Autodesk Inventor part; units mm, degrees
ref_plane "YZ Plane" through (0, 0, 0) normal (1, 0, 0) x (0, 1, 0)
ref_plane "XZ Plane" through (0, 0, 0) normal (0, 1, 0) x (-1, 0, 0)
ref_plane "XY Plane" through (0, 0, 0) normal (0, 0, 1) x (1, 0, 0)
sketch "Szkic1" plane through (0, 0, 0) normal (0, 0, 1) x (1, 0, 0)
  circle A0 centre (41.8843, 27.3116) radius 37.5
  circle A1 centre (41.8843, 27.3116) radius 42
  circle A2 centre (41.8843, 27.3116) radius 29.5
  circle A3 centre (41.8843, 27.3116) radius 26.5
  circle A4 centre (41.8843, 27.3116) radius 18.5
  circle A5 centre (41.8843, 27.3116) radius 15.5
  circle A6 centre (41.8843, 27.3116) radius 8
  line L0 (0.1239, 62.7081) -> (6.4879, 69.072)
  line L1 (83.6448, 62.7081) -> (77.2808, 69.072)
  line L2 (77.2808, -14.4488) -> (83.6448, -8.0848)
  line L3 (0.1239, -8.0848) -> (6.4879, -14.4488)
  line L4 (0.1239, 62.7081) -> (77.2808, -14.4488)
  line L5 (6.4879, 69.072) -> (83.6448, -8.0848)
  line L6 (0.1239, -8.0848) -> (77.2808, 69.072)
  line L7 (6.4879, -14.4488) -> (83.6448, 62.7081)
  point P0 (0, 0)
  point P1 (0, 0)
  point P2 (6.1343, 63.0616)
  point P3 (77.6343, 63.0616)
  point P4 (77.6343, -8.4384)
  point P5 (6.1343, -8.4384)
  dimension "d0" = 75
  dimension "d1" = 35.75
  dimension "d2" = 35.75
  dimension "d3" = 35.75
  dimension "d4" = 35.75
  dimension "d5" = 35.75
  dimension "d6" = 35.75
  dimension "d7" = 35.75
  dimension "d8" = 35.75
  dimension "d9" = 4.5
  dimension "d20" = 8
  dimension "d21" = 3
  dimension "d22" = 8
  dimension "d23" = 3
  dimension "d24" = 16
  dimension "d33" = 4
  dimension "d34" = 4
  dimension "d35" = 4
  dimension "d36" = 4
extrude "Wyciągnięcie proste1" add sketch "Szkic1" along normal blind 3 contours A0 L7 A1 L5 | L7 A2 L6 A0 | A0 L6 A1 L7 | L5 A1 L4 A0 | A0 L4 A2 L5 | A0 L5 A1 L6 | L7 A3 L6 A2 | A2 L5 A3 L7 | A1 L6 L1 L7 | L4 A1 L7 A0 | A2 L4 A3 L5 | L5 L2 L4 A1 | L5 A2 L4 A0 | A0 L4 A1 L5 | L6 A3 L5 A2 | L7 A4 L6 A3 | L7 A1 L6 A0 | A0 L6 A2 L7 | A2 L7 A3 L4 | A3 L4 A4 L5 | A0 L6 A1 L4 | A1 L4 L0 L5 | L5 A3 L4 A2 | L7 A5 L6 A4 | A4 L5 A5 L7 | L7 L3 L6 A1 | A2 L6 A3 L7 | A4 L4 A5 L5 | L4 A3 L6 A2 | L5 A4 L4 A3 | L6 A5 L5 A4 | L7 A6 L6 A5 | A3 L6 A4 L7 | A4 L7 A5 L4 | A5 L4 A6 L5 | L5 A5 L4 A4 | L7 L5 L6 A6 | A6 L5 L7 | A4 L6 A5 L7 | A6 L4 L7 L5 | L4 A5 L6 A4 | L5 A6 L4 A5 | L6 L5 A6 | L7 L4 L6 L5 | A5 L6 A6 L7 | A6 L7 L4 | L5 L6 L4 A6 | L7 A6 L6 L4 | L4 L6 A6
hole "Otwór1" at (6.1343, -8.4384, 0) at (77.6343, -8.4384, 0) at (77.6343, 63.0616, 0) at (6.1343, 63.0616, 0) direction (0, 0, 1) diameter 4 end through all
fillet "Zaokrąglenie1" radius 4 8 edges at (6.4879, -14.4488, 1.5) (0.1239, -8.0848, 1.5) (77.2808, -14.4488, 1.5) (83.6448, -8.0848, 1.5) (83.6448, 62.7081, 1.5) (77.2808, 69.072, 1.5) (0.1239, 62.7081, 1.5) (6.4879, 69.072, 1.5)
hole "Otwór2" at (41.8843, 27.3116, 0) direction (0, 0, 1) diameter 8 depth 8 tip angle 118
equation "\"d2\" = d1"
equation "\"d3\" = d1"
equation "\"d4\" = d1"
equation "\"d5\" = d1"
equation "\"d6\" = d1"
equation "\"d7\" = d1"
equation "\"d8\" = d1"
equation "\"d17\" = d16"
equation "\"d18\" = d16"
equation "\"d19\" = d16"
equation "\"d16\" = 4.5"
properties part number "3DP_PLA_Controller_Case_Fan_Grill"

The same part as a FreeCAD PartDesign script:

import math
import FreeCAD as App
import Part
import Sketcher
from FreeCAD import Vector
Q = App.Units.Quantity


def edges_at(feature, points):
    """Names of the edges that pass closest to the given points."""
    edges = feature.Shape.Edges
    near = lambda p: min(range(len(edges)), key=lambda i: edges[i].distToShape(Part.Vertex(*p))[0])
    return sorted({f"Edge{near(p) + 1}" for p in points})

doc = App.newDocument("Part")
body = doc.addObject("PartDesign::Body", "Body")

# Sketch on XY plane
sketch1 = body.newObject("Sketcher::SketchObject", "Sketch")
sketch1.AttachmentSupport = (doc.getObject("XY_Plane"), [""])
sketch1.MapMode = "FlatFace"
sketch1.addGeometry([
    Part.LineSegment(Vector(74.593827, 53.657127, 0), Vector(83.6448, 62.7081, 0)),  # 0
    Part.LineSegment(Vector(83.6448, 62.7081, 0), Vector(77.2808, 69.072, 0)),  # 1
    Part.LineSegment(Vector(77.2808, 69.072, 0), Vector(68.229876, 60.021088, 0)),  # 2
    Part.ArcOfCircle(Part.Circle(Vector(41.8843, 27.3116, 0), Vector(0, 0, 1), 42), math.radians(51.150592), math.radians(128.849311)),  # 3
    Part.LineSegment(Vector(15.538779, 60.021133, 0), Vector(6.4879, 69.072, 0)),  # 4
    Part.LineSegment(Vector(6.4879, 69.072, 0), Vector(0.1239, 62.7081, 0)),  # 5
    Part.LineSegment(Vector(0.1239, 62.7081, 0), Vector(9.174817, 53.657183, 0)),  # 6
    Part.ArcOfCircle(Part.Circle(Vector(41.8843, 27.3116, 0), Vector(0, 0, 1), 42), math.radians(141.150581), math.radians(218.849334)),  # 7
    Part.LineSegment(Vector(9.174778, 0.966066, 0), Vector(0.1239, -8.0848, 0)),  # 8
    Part.LineSegment(Vector(0.1239, -8.0848, 0), Vector(6.4879, -14.4488, 0)),  # 9
    Part.LineSegment(Vector(6.4879, -14.4488, 0), Vector(15.538773, -5.397927, 0)),  # 10
    Part.ArcOfCircle(Part.Circle(Vector(41.8843, 27.3116, 0), Vector(0, 0, 1), 42), math.radians(-128.849322), math.radians(-51.150581)),  # 11
    Part.LineSegment(Vector(68.229883, -5.397883, 0), Vector(77.2808, -14.4488, 0)),  # 12
    Part.LineSegment(Vector(77.2808, -14.4488, 0), Vector(83.6448, -8.0848, 0)),  # 13
    Part.LineSegment(Vector(83.6448, -8.0848, 0), Vector(74.593867, 0.966121, 0)),  # 14
    Part.ArcOfCircle(Part.Circle(Vector(41.8843, 27.3116, 0), Vector(0, 0, 1), 42), math.radians(-38.849237), math.radians(38.849322)),  # 15
    Part.ArcOfCircle(Part.Circle(Vector(41.8843, 27.3116, 0), Vector(0, 0, 1), 37.5), math.radians(-38.107763), math.radians(38.107855)),  # 16
    Part.LineSegment(Vector(71.391228, 4.168756, 0), Vector(65.681858, 9.878119, 0)),  # 17
    Part.ArcOfCircle(Part.Circle(Vector(41.8843, 27.3116, 0), Vector(0, 0, 1), 29.5), math.radians(-36.22555), math.radians(36.225656)),  # 18
    Part.LineSegment(Vector(65.681825, 44.745125, 0), Vector(71.391191, 50.454491, 0)),  # 19
    Part.LineSegment(Vector(65.027238, 56.818454, 0), Vector(59.317869, 51.109093, 0)),  # 20
    Part.ArcOfCircle(Part.Circle(Vector(41.8843, 27.3116, 0), Vector(0, 0, 1), 29.5), math.radians(53.774237), math.radians(126.225624)),  # 21
    Part.LineSegment(Vector(24.450788, 51.109135, 0), Vector(18.741418, 56.818498, 0)),  # 22
    Part.ArcOfCircle(Part.Circle(Vector(41.8843, 27.3116, 0), Vector(0, 0, 1), 37.5), math.radians(51.892053), math.radians(128.107838)),  # 23
    Part.LineSegment(Vector(59.317883, 3.514117, 0), Vector(65.027247, -2.195247, 0)),  # 24
    Part.ArcOfCircle(Part.Circle(Vector(41.8843, 27.3116, 0), Vector(0, 0, 1), 37.5), math.radians(-128.107855), math.radians(-51.892036)),  # 25
    Part.LineSegment(Vector(18.741409, -2.195291, 0), Vector(24.450775, 3.514075, 0)),  # 26
    Part.ArcOfCircle(Part.Circle(Vector(41.8843, 27.3116, 0), Vector(0, 0, 1), 29.5), math.radians(-126.225656), math.radians(-53.774205)),  # 27
    Part.ArcOfCircle(Part.Circle(Vector(41.8843, 27.3116, 0), Vector(0, 0, 1), 26.5), math.radians(-35.222976), math.radians(35.223091)),  # 28
    Part.LineSegment(Vector(63.532513, 12.027461, 0), Vector(57.754898, 17.805069, 0)),  # 29
    Part.ArcOfCircle(Part.Circle(Vector(41.8843, 27.3116, 0), Vector(0, 0, 1), 18.5), math.radians(-30.921723), math.radians(30.921873)),  # 30
    Part.LineSegment(Vector(57.754873, 36.818173, 0), Vector(63.532482, 42.595782, 0)),  # 31
    Part.LineSegment(Vector(57.168525, 48.959751, 0), Vector(51.390914, 43.182148, 0)),  # 32
    Part.ArcOfCircle(Part.Circle(Vector(41.8843, 27.3116, 0), Vector(0, 0, 1), 18.5), math.radians(59.077977), math.radians(120.921798)),  # 33
    Part.LineSegment(Vector(32.377748, 43.182185, 0), Vector(26.600133, 48.959793, 0)),  # 34
    Part.ArcOfCircle(Part.Circle(Vector(41.8843, 27.3116, 0), Vector(0, 0, 1), 26.5), math.radians(54.776795), math.radians(125.22305)),  # 35
    Part.LineSegment(Vector(12.377453, 50.454547, 0), Vector(18.086817, 44.745183, 0)),  # 36
    Part.ArcOfCircle(Part.Circle(Vector(41.8843, 27.3116, 0), Vector(0, 0, 1), 29.5), math.radians(143.774205), math.radians(216.225689)),  # 37
    Part.LineSegment(Vector(18.086785, 9.878061, 0), Vector(12.377416, 4.1687, 0)),  # 38
    Part.ArcOfCircle(Part.Circle(Vector(41.8843, 27.3116, 0), Vector(0, 0, 1), 37.5), math.radians(141.892036), math.radians(218.107872)),  # 39
    Part.ArcOfCircle(Part.Circle(Vector(41.8843, 27.3116, 0), Vector(0, 0, 1), 26.5), math.radians(-125.223091), math.radians(-54.776754)),  # 40
    Part.LineSegment(Vector(26.600118, 5.663418, 0), Vector(32.377727, 11.441027, 0)),  # 41
    Part.ArcOfCircle(Part.Circle(Vector(41.8843, 27.3116, 0), Vector(0, 0, 1), 18.5), math.radians(-120.921873), math.radians(-59.077901)),  # 42
    Part.LineSegment(Vector(51.390935, 11.441065, 0), Vector(57.168541, 5.663459, 0)),  # 43
    Part.ArcOfCircle(Part.Circle(Vector(41.8843, 27.3116, 0), Vector(0, 0, 1), 15.5), math.radians(-28.12245), math.radians(28.122624)),  # 44
    Part.LineSegment(Vector(55.554405, 20.005559, 0), Vector(49.743367, 25.816589, 0)),  # 45
    Part.ArcOfCircle(Part.Circle(Vector(41.8843, 27.3116, 0), Vector(0, 0, 1), 8), math.radians(-10.770552), math.radians(10.770895)),  # 46
    Part.LineSegment(Vector(49.743358, 28.806658, 0), Vector(55.554383, 34.617683, 0)),  # 47
    Part.LineSegment(Vector(49.190424, 40.98166, 0), Vector(43.379406, 35.17065, 0)),  # 48
    Part.ArcOfCircle(Part.Circle(Vector(41.8843, 27.3116, 0), Vector(0, 0, 1), 8), math.radians(79.228762), math.radians(100.770626)),  # 49
    Part.LineSegment(Vector(40.389278, 35.170665, 0), Vector(34.578241, 40.981695, 0)),  # 50
    Part.ArcOfCircle(Part.Circle(Vector(41.8843, 27.3116, 0), Vector(0, 0, 1), 15.5), math.radians(61.877202), math.radians(118.122525)),  # 51
    Part.ArcOfCircle(Part.Circle(Vector(41.8843, 27.3116, 0), Vector(0, 0, 1), 26.5), math.radians(144.776754), math.radians(215.223131)),  # 52
    Part.LineSegment(Vector(20.236159, 42.595841, 0), Vector(26.013765, 36.818235, 0)),  # 53
    Part.ArcOfCircle(Part.Circle(Vector(41.8843, 27.3116, 0), Vector(0, 0, 1), 18.5), math.radians(149.077901), math.radians(210.921949)),  # 54
    Part.LineSegment(Vector(26.01374, 17.805006, 0), Vector(20.236129, 12.027403, 0)),  # 55
    Part.ArcOfCircle(Part.Circle(Vector(41.8843, 27.3116, 0), Vector(0, 0, 1), 15.5), math.radians(-118.122624), math.radians(-61.877103)),  # 56
    Part.LineSegment(Vector(34.578217, 13.641517, 0), Vector(40.389242, 19.452542, 0)),  # 57
    Part.ArcOfCircle(Part.Circle(Vector(41.8843, 27.3116, 0), Vector(0, 0, 1), 8), math.radians(-100.770895), math.radians(-79.228493)),  # 58
    Part.LineSegment(Vector(43.379442, 19.452558, 0), Vector(49.190448, 13.641552, 0)),  # 59
    Part.ArcOfCircle(Part.Circle(Vector(41.8843, 27.3116, 0), Vector(0, 0, 1), 15.5), math.radians(151.877103), math.radians(208.122724)),  # 60
    Part.LineSegment(Vector(28.214252, 34.617748, 0), Vector(34.025258, 28.806742, 0)),  # 61
    Part.ArcOfCircle(Part.Circle(Vector(41.8843, 27.3116, 0), Vector(0, 0, 1), 8), math.radians(169.228493), math.radians(190.771164)),  # 62
    Part.LineSegment(Vector(34.025249, 25.816505, 0), Vector(28.21423, 20.005494, 0)),  # 63
], False)
sketch1.addConstraint([
    Sketcher.Constraint("Coincident", 0, 2, 1, 1),
    Sketcher.Constraint("Coincident", 1, 2, 2, 1),
    Sketcher.Constraint("Coincident", 2, 2, 3, 1),
    Sketcher.Constraint("Coincident", 3, 2, 4, 1),
    Sketcher.Constraint("Coincident", 4, 2, 5, 1),
    Sketcher.Constraint("Coincident", 5, 2, 6, 1),
    Sketcher.Constraint("Coincident", 6, 2, 7, 1),
    Sketcher.Constraint("Coincident", 7, 2, 8, 1),
    Sketcher.Constraint("Coincident", 8, 2, 9, 1),
    Sketcher.Constraint("Coincident", 9, 2, 10, 1),
    Sketcher.Constraint("Coincident", 10, 2, 11, 1),
    Sketcher.Constraint("Coincident", 11, 2, 12, 1),
    Sketcher.Constraint("Coincident", 12, 2, 13, 1),
    Sketcher.Constraint("Coincident", 13, 2, 14, 1),
    Sketcher.Constraint("Coincident", 14, 2, 15, 1),
    Sketcher.Constraint("Coincident", 15, 2, 0, 1),
    Sketcher.Constraint("Coincident", 16, 1, 17, 1),
    Sketcher.Constraint("Coincident", 17, 2, 18, 1),
    Sketcher.Constraint("Coincident", 18, 2, 19, 1),
    Sketcher.Constraint("Coincident", 19, 2, 16, 2),
    Sketcher.Constraint("Coincident", 20, 2, 21, 1),
    Sketcher.Constraint("Coincident", 21, 2, 22, 1),
    Sketcher.Constraint("Coincident", 22, 2, 23, 2),
    Sketcher.Constraint("Coincident", 23, 1, 20, 1),
    Sketcher.Constraint("Coincident", 24, 2, 25, 2),
    Sketcher.Constraint("Coincident", 25, 1, 26, 1),
    Sketcher.Constraint("Coincident", 26, 2, 27, 1),
    Sketcher.Constraint("Coincident", 27, 2, 24, 1),
    Sketcher.Constraint("Coincident", 28, 1, 29, 1),
    Sketcher.Constraint("Coincident", 29, 2, 30, 1),
    Sketcher.Constraint("Coincident", 30, 2, 31, 1),
    Sketcher.Constraint("Coincident", 31, 2, 28, 2),
    Sketcher.Constraint("Coincident", 32, 2, 33, 1),
    Sketcher.Constraint("Coincident", 33, 2, 34, 1),
    Sketcher.Constraint("Coincident", 34, 2, 35, 2),
    Sketcher.Constraint("Coincident", 35, 1, 32, 1),
    Sketcher.Constraint("Coincident", 36, 2, 37, 1),
    Sketcher.Constraint("Coincident", 37, 2, 38, 1),
    Sketcher.Constraint("Coincident", 38, 2, 39, 2),
    Sketcher.Constraint("Coincident", 39, 1, 36, 1),
    Sketcher.Constraint("Coincident", 40, 1, 41, 1),
    Sketcher.Constraint("Coincident", 41, 2, 42, 1),
    Sketcher.Constraint("Coincident", 42, 2, 43, 1),
    Sketcher.Constraint("Coincident", 43, 2, 40, 2),
    Sketcher.Constraint("Coincident", 44, 1, 45, 1),
    Sketcher.Constraint("Coincident", 45, 2, 46, 1),
    Sketcher.Constraint("Coincident", 46, 2, 47, 1),
    Sketcher.Constraint("Coincident", 47, 2, 44, 2),
    Sketcher.Constraint("Coincident", 48, 2, 49, 1),
    Sketcher.Constraint("Coincident", 49, 2, 50, 1),
    Sketcher.Constraint("Coincident", 50, 2, 51, 2),
    Sketcher.Constraint("Coincident", 51, 1, 48, 1),
    Sketcher.Constraint("Coincident", 52, 1, 53, 1),
    Sketcher.Constraint("Coincident", 53, 2, 54, 1),
    Sketcher.Constraint("Coincident", 54, 2, 55, 1),
    Sketcher.Constraint("Coincident", 55, 2, 52, 2),
    Sketcher.Constraint("Coincident", 56, 1, 57, 1),
    Sketcher.Constraint("Coincident", 57, 2, 58, 1),
    Sketcher.Constraint("Coincident", 58, 2, 59, 1),
    Sketcher.Constraint("Coincident", 59, 2, 56, 2),
    Sketcher.Constraint("Coincident", 60, 1, 61, 1),
    Sketcher.Constraint("Coincident", 61, 2, 62, 1),
    Sketcher.Constraint("Coincident", 62, 2, 63, 1),
    Sketcher.Constraint("Coincident", 63, 2, 60, 2),
    Sketcher.Constraint("Coincident", 7, 3, 3, 3),
    Sketcher.Constraint("Coincident", 11, 3, 3, 3),
    Sketcher.Constraint("Coincident", 15, 3, 3, 3),
    Sketcher.Constraint("Coincident", 16, 3, 3, 3),
    Sketcher.Constraint("Coincident", 18, 3, 3, 3),
    Sketcher.Constraint("Coincident", 21, 3, 3, 3),
    Sketcher.Constraint("Coincident", 23, 3, 3, 3),
    Sketcher.Constraint("Coincident", 25, 3, 3, 3),
    Sketcher.Constraint("Coincident", 27, 3, 3, 3),
    Sketcher.Constraint("Coincident", 28, 3, 3, 3),
    Sketcher.Constraint("Coincident", 30, 3, 3, 3),
    Sketcher.Constraint("Coincident", 33, 3, 3, 3),
    Sketcher.Constraint("Coincident", 35, 3, 3, 3),
    Sketcher.Constraint("Coincident", 37, 3, 3, 3),
    Sketcher.Constraint("Coincident", 39, 3, 3, 3),
    Sketcher.Constraint("Coincident", 40, 3, 3, 3),
    Sketcher.Constraint("Coincident", 42, 3, 3, 3),
    Sketcher.Constraint("Coincident", 44, 3, 3, 3),
    Sketcher.Constraint("Coincident", 46, 3, 3, 3),
    Sketcher.Constraint("Coincident", 49, 3, 3, 3),
    Sketcher.Constraint("Coincident", 51, 3, 3, 3),
    Sketcher.Constraint("Coincident", 52, 3, 3, 3),
    Sketcher.Constraint("Coincident", 54, 3, 3, 3),
    Sketcher.Constraint("Coincident", 56, 3, 3, 3),
    Sketcher.Constraint("Coincident", 58, 3, 3, 3),
    Sketcher.Constraint("Coincident", 60, 3, 3, 3),
    Sketcher.Constraint("Coincident", 62, 3, 3, 3),
    Sketcher.Constraint("Equal", 3, 7),
    Sketcher.Constraint("Equal", 7, 11),
    Sketcher.Constraint("Equal", 11, 15),
    Sketcher.Constraint("Equal", 18, 21),
    Sketcher.Constraint("Equal", 16, 23),
    Sketcher.Constraint("Equal", 23, 25),
    Sketcher.Constraint("Equal", 21, 27),
    Sketcher.Constraint("Equal", 30, 33),
    Sketcher.Constraint("Equal", 28, 35),
    Sketcher.Constraint("Equal", 27, 37),
    Sketcher.Constraint("Equal", 25, 39),
    Sketcher.Constraint("Equal", 35, 40),
    Sketcher.Constraint("Equal", 33, 42),
    Sketcher.Constraint("Equal", 46, 49),
    Sketcher.Constraint("Equal", 44, 51),
    Sketcher.Constraint("Equal", 40, 52),
    Sketcher.Constraint("Equal", 42, 54),
    Sketcher.Constraint("Equal", 51, 56),
    Sketcher.Constraint("Equal", 49, 58),
    Sketcher.Constraint("Equal", 56, 60),
    Sketcher.Constraint("Equal", 58, 62),
    Sketcher.Constraint("Perpendicular", 0, 1),
    Sketcher.Constraint("Perpendicular", 1, 2),
    Sketcher.Constraint("Perpendicular", 2, 4),
    Sketcher.Constraint("Perpendicular", 4, 5),
    Sketcher.Constraint("Perpendicular", 5, 6),
    Sketcher.Constraint("Perpendicular", 6, 8),
    Sketcher.Constraint("Perpendicular", 8, 9),
    Sketcher.Constraint("Perpendicular", 9, 10),
    Sketcher.Constraint("Perpendicular", 10, 12),
    Sketcher.Constraint("Perpendicular", 12, 13),
    Sketcher.Constraint("Perpendicular", 13, 14),
    Sketcher.Constraint("Parallel", 14, 17),
    Sketcher.Constraint("Perpendicular", 17, 19),
    Sketcher.Constraint("Parallel", 19, 20),
    Sketcher.Constraint("Perpendicular", 20, 22),
    Sketcher.Constraint("Parallel", 22, 24),
    Sketcher.Constraint("Perpendicular", 24, 26),
    Sketcher.Constraint("Perpendicular", 26, 29),
    Sketcher.Constraint("Perpendicular", 29, 31),
    Sketcher.Constraint("Parallel", 31, 32),
    Sketcher.Constraint("Perpendicular", 32, 34),
    Sketcher.Constraint("Parallel", 34, 36),
    Sketcher.Constraint("Perpendicular", 36, 38),
    Sketcher.Constraint("Parallel", 38, 41),
    Sketcher.Constraint("Perpendicular", 41, 43),
    Sketcher.Constraint("Parallel", 43, 45),
    Sketcher.Constraint("Perpendicular", 45, 47),
    Sketcher.Constraint("Parallel", 47, 48),
    Sketcher.Constraint("Perpendicular", 48, 50),
    Sketcher.Constraint("Parallel", 50, 53),
    Sketcher.Constraint("Perpendicular", 53, 55),
    Sketcher.Constraint("Parallel", 55, 57),
    Sketcher.Constraint("Perpendicular", 57, 59),
    Sketcher.Constraint("Parallel", 59, 61),
    Sketcher.Constraint("Perpendicular", 61, 63),
    Sketcher.Constraint("Horizontal", 2, 2, 3, 2),
    Sketcher.Constraint("Horizontal", 1, 2, 4, 2),
    Sketcher.Constraint("Horizontal", 0, 2, 5, 2),
    Sketcher.Constraint("Horizontal", 10, 2, 11, 2),
    Sketcher.Constraint("Horizontal", 9, 2, 12, 2),
    Sketcher.Constraint("Horizontal", 8, 2, 13, 2),
    Sketcher.Constraint("Horizontal", 7, 2, 14, 2),
    Sketcher.Constraint("Horizontal", 20, 2, 21, 2),
    Sketcher.Constraint("Horizontal", 24, 2, 25, 1),
    Sketcher.Constraint("Horizontal", 32, 2, 33, 2),
    Sketcher.Constraint("Horizontal", 18, 2, 36, 2),
    Sketcher.Constraint("Horizontal", 17, 2, 37, 2),
    Sketcher.Constraint("Horizontal", 41, 2, 42, 2),
    Sketcher.Constraint("Horizontal", 48, 2, 49, 2),
    Sketcher.Constraint("Horizontal", 31, 2, 52, 1),
    Sketcher.Constraint("Horizontal", 29, 2, 54, 2),
    Sketcher.Constraint("Horizontal", 57, 2, 58, 2),
    Sketcher.Constraint("Horizontal", 47, 2, 60, 1),
    Sketcher.Constraint("Horizontal", 45, 2, 62, 2),
    Sketcher.Constraint("Vertical", 6, 2, 7, 2),
    Sketcher.Constraint("Vertical", 5, 2, 8, 2),
    Sketcher.Constraint("Vertical", 4, 2, 9, 2),
    Sketcher.Constraint("Vertical", 17, 2, 18, 2),
    Sketcher.Constraint("Vertical", 23, 1, 24, 2),
    Sketcher.Constraint("Vertical", 29, 2, 30, 2),
    Sketcher.Constraint("Vertical", 34, 2, 40, 1),
    Sketcher.Constraint("Vertical", 45, 2, 46, 2),
    Sketcher.Constraint("Vertical", 50, 2, 56, 1),
    Sketcher.Constraint("Equal", 0, 2),
    Sketcher.Constraint("Equal", 19, 20),
    Sketcher.Constraint("Equal", 31, 32),
    Sketcher.Constraint("Equal", 47, 48),
    Sketcher.Constraint("Radius", 46, Q("8 mm")),
    Sketcher.Constraint("Radius", 16, Q("37.5 mm")),
    Sketcher.Constraint("Radius", 3, Q("42 mm")),
    Sketcher.Constraint("Radius", 18, Q("29.5 mm")),
    Sketcher.Constraint("Radius", 28, Q("26.5 mm")),
    Sketcher.Constraint("Radius", 30, Q("18.5 mm")),
    Sketcher.Constraint("Radius", 44, Q("15.5 mm")),
    Sketcher.Constraint("Distance", 1, Q("9 mm")),
    Sketcher.Constraint("Distance", 0, Q("12.8 mm")),
    Sketcher.Constraint("DistanceX", -1, 1, 40, 1, Q("26.6 mm")),
    Sketcher.Constraint("DistanceX", -1, 1, 11, 2, Q("68.23 mm")),
    Sketcher.Constraint("Distance", 45, Q("8.218 mm")),
    Sketcher.Constraint("DistanceY", -1, 1, 0, 2, Q("62.708 mm")),
    Sketcher.Constraint("DistanceY", -1, 1, 17, 2, Q("9.878 mm")),
])
pad1 = body.newObject("PartDesign::Pad", "Pad")
pad1.Profile = sketch1
pad1.Length = 3

# Sketch on XY plane
sketch2 = body.newObject("Sketcher::SketchObject", "Sketch001")
sketch2.AttachmentSupport = (doc.getObject("XY_Plane"), [""])
sketch2.MapMode = "FlatFace"
sketch2.addGeometry([
    Part.Circle(Vector(6.1343, -8.4384, 0), Vector(0, 0, 1), 2),
    Part.Circle(Vector(77.6343, -8.4384, 0), Vector(0, 0, 1), 2),
    Part.Circle(Vector(77.6343, 63.0616, 0), Vector(0, 0, 1), 2),
    Part.Circle(Vector(6.1343, 63.0616, 0), Vector(0, 0, 1), 2),
], False)
sketch2.addConstraint([
    Sketcher.Constraint("Equal", 0, 1),
    Sketcher.Constraint("Equal", 1, 2),
    Sketcher.Constraint("Equal", 2, 3),
    Sketcher.Constraint("Horizontal", 0, 3, 1, 3),
    Sketcher.Constraint("Horizontal", 2, 3, 3, 3),
    Sketcher.Constraint("Vertical", 1, 3, 2, 3),
    Sketcher.Constraint("Vertical", 0, 3, 3, 3),
    Sketcher.Constraint("Diameter", 0, Q("4 mm")),
    Sketcher.Constraint("DistanceX", 0, 3, 1, 3, Q("71.5 mm")),
    Sketcher.Constraint("DistanceY", 1, 3, 2, 3, Q("71.5 mm")),
    Sketcher.Constraint("DistanceX", -1, 1, 0, 3, Q("6.1343 mm")),
    Sketcher.Constraint("DistanceY", 0, 3, -1, 1, Q("8.4384 mm")),
])
doc.recompute()
hole = body.newObject("PartDesign::Hole", "Hole")
hole.Profile = sketch2
hole.ThreadType = "None"
hole.Diameter = 4
hole.DepthType = "ThroughAll"
hole.Reversed = True
doc.recompute()

fillet = body.newObject("PartDesign::Fillet", "Fillet")
fillet.Base = (hole, edges_at(hole, [
    (6.488, -14.449, 1.5),
    (0.124, -8.085, 1.5),
    (77.281, -14.449, 1.5),
    (83.645, -8.085, 1.5),
    (83.645, 62.708, 1.5),
    (77.281, 69.072, 1.5),
    (0.124, 62.708, 1.5),
    (6.488, 69.072, 1.5),
]))
fillet.Radius = 4

# Sketch on XY plane
sketch3 = body.newObject("Sketcher::SketchObject", "Sketch002")
sketch3.AttachmentSupport = (doc.getObject("XY_Plane"), [""])
sketch3.MapMode = "FlatFace"
sketch3.addGeometry(Part.Circle(Vector(41.8843, 27.3116, 0), Vector(0, 0, 1), 4), False)
sketch3.addConstraint([
    Sketcher.Constraint("Diameter", 0, Q("8 mm")),
    Sketcher.Constraint("DistanceX", -1, 1, 0, 3, Q("41.8843 mm")),
    Sketcher.Constraint("DistanceY", -1, 1, 0, 3, Q("27.3116 mm")),
])
doc.recompute()
hole2 = body.newObject("PartDesign::Hole", "Hole001")
hole2.Profile = sketch3
hole2.ThreadType = "None"
hole2.Diameter = 8
hole2.DepthType = "Dimension"
hole2.Depth = 8
hole2.DrillPoint = "Angled"
hole2.DrillPointAngle = 118
hole2.Reversed = True

doc.recompute()
